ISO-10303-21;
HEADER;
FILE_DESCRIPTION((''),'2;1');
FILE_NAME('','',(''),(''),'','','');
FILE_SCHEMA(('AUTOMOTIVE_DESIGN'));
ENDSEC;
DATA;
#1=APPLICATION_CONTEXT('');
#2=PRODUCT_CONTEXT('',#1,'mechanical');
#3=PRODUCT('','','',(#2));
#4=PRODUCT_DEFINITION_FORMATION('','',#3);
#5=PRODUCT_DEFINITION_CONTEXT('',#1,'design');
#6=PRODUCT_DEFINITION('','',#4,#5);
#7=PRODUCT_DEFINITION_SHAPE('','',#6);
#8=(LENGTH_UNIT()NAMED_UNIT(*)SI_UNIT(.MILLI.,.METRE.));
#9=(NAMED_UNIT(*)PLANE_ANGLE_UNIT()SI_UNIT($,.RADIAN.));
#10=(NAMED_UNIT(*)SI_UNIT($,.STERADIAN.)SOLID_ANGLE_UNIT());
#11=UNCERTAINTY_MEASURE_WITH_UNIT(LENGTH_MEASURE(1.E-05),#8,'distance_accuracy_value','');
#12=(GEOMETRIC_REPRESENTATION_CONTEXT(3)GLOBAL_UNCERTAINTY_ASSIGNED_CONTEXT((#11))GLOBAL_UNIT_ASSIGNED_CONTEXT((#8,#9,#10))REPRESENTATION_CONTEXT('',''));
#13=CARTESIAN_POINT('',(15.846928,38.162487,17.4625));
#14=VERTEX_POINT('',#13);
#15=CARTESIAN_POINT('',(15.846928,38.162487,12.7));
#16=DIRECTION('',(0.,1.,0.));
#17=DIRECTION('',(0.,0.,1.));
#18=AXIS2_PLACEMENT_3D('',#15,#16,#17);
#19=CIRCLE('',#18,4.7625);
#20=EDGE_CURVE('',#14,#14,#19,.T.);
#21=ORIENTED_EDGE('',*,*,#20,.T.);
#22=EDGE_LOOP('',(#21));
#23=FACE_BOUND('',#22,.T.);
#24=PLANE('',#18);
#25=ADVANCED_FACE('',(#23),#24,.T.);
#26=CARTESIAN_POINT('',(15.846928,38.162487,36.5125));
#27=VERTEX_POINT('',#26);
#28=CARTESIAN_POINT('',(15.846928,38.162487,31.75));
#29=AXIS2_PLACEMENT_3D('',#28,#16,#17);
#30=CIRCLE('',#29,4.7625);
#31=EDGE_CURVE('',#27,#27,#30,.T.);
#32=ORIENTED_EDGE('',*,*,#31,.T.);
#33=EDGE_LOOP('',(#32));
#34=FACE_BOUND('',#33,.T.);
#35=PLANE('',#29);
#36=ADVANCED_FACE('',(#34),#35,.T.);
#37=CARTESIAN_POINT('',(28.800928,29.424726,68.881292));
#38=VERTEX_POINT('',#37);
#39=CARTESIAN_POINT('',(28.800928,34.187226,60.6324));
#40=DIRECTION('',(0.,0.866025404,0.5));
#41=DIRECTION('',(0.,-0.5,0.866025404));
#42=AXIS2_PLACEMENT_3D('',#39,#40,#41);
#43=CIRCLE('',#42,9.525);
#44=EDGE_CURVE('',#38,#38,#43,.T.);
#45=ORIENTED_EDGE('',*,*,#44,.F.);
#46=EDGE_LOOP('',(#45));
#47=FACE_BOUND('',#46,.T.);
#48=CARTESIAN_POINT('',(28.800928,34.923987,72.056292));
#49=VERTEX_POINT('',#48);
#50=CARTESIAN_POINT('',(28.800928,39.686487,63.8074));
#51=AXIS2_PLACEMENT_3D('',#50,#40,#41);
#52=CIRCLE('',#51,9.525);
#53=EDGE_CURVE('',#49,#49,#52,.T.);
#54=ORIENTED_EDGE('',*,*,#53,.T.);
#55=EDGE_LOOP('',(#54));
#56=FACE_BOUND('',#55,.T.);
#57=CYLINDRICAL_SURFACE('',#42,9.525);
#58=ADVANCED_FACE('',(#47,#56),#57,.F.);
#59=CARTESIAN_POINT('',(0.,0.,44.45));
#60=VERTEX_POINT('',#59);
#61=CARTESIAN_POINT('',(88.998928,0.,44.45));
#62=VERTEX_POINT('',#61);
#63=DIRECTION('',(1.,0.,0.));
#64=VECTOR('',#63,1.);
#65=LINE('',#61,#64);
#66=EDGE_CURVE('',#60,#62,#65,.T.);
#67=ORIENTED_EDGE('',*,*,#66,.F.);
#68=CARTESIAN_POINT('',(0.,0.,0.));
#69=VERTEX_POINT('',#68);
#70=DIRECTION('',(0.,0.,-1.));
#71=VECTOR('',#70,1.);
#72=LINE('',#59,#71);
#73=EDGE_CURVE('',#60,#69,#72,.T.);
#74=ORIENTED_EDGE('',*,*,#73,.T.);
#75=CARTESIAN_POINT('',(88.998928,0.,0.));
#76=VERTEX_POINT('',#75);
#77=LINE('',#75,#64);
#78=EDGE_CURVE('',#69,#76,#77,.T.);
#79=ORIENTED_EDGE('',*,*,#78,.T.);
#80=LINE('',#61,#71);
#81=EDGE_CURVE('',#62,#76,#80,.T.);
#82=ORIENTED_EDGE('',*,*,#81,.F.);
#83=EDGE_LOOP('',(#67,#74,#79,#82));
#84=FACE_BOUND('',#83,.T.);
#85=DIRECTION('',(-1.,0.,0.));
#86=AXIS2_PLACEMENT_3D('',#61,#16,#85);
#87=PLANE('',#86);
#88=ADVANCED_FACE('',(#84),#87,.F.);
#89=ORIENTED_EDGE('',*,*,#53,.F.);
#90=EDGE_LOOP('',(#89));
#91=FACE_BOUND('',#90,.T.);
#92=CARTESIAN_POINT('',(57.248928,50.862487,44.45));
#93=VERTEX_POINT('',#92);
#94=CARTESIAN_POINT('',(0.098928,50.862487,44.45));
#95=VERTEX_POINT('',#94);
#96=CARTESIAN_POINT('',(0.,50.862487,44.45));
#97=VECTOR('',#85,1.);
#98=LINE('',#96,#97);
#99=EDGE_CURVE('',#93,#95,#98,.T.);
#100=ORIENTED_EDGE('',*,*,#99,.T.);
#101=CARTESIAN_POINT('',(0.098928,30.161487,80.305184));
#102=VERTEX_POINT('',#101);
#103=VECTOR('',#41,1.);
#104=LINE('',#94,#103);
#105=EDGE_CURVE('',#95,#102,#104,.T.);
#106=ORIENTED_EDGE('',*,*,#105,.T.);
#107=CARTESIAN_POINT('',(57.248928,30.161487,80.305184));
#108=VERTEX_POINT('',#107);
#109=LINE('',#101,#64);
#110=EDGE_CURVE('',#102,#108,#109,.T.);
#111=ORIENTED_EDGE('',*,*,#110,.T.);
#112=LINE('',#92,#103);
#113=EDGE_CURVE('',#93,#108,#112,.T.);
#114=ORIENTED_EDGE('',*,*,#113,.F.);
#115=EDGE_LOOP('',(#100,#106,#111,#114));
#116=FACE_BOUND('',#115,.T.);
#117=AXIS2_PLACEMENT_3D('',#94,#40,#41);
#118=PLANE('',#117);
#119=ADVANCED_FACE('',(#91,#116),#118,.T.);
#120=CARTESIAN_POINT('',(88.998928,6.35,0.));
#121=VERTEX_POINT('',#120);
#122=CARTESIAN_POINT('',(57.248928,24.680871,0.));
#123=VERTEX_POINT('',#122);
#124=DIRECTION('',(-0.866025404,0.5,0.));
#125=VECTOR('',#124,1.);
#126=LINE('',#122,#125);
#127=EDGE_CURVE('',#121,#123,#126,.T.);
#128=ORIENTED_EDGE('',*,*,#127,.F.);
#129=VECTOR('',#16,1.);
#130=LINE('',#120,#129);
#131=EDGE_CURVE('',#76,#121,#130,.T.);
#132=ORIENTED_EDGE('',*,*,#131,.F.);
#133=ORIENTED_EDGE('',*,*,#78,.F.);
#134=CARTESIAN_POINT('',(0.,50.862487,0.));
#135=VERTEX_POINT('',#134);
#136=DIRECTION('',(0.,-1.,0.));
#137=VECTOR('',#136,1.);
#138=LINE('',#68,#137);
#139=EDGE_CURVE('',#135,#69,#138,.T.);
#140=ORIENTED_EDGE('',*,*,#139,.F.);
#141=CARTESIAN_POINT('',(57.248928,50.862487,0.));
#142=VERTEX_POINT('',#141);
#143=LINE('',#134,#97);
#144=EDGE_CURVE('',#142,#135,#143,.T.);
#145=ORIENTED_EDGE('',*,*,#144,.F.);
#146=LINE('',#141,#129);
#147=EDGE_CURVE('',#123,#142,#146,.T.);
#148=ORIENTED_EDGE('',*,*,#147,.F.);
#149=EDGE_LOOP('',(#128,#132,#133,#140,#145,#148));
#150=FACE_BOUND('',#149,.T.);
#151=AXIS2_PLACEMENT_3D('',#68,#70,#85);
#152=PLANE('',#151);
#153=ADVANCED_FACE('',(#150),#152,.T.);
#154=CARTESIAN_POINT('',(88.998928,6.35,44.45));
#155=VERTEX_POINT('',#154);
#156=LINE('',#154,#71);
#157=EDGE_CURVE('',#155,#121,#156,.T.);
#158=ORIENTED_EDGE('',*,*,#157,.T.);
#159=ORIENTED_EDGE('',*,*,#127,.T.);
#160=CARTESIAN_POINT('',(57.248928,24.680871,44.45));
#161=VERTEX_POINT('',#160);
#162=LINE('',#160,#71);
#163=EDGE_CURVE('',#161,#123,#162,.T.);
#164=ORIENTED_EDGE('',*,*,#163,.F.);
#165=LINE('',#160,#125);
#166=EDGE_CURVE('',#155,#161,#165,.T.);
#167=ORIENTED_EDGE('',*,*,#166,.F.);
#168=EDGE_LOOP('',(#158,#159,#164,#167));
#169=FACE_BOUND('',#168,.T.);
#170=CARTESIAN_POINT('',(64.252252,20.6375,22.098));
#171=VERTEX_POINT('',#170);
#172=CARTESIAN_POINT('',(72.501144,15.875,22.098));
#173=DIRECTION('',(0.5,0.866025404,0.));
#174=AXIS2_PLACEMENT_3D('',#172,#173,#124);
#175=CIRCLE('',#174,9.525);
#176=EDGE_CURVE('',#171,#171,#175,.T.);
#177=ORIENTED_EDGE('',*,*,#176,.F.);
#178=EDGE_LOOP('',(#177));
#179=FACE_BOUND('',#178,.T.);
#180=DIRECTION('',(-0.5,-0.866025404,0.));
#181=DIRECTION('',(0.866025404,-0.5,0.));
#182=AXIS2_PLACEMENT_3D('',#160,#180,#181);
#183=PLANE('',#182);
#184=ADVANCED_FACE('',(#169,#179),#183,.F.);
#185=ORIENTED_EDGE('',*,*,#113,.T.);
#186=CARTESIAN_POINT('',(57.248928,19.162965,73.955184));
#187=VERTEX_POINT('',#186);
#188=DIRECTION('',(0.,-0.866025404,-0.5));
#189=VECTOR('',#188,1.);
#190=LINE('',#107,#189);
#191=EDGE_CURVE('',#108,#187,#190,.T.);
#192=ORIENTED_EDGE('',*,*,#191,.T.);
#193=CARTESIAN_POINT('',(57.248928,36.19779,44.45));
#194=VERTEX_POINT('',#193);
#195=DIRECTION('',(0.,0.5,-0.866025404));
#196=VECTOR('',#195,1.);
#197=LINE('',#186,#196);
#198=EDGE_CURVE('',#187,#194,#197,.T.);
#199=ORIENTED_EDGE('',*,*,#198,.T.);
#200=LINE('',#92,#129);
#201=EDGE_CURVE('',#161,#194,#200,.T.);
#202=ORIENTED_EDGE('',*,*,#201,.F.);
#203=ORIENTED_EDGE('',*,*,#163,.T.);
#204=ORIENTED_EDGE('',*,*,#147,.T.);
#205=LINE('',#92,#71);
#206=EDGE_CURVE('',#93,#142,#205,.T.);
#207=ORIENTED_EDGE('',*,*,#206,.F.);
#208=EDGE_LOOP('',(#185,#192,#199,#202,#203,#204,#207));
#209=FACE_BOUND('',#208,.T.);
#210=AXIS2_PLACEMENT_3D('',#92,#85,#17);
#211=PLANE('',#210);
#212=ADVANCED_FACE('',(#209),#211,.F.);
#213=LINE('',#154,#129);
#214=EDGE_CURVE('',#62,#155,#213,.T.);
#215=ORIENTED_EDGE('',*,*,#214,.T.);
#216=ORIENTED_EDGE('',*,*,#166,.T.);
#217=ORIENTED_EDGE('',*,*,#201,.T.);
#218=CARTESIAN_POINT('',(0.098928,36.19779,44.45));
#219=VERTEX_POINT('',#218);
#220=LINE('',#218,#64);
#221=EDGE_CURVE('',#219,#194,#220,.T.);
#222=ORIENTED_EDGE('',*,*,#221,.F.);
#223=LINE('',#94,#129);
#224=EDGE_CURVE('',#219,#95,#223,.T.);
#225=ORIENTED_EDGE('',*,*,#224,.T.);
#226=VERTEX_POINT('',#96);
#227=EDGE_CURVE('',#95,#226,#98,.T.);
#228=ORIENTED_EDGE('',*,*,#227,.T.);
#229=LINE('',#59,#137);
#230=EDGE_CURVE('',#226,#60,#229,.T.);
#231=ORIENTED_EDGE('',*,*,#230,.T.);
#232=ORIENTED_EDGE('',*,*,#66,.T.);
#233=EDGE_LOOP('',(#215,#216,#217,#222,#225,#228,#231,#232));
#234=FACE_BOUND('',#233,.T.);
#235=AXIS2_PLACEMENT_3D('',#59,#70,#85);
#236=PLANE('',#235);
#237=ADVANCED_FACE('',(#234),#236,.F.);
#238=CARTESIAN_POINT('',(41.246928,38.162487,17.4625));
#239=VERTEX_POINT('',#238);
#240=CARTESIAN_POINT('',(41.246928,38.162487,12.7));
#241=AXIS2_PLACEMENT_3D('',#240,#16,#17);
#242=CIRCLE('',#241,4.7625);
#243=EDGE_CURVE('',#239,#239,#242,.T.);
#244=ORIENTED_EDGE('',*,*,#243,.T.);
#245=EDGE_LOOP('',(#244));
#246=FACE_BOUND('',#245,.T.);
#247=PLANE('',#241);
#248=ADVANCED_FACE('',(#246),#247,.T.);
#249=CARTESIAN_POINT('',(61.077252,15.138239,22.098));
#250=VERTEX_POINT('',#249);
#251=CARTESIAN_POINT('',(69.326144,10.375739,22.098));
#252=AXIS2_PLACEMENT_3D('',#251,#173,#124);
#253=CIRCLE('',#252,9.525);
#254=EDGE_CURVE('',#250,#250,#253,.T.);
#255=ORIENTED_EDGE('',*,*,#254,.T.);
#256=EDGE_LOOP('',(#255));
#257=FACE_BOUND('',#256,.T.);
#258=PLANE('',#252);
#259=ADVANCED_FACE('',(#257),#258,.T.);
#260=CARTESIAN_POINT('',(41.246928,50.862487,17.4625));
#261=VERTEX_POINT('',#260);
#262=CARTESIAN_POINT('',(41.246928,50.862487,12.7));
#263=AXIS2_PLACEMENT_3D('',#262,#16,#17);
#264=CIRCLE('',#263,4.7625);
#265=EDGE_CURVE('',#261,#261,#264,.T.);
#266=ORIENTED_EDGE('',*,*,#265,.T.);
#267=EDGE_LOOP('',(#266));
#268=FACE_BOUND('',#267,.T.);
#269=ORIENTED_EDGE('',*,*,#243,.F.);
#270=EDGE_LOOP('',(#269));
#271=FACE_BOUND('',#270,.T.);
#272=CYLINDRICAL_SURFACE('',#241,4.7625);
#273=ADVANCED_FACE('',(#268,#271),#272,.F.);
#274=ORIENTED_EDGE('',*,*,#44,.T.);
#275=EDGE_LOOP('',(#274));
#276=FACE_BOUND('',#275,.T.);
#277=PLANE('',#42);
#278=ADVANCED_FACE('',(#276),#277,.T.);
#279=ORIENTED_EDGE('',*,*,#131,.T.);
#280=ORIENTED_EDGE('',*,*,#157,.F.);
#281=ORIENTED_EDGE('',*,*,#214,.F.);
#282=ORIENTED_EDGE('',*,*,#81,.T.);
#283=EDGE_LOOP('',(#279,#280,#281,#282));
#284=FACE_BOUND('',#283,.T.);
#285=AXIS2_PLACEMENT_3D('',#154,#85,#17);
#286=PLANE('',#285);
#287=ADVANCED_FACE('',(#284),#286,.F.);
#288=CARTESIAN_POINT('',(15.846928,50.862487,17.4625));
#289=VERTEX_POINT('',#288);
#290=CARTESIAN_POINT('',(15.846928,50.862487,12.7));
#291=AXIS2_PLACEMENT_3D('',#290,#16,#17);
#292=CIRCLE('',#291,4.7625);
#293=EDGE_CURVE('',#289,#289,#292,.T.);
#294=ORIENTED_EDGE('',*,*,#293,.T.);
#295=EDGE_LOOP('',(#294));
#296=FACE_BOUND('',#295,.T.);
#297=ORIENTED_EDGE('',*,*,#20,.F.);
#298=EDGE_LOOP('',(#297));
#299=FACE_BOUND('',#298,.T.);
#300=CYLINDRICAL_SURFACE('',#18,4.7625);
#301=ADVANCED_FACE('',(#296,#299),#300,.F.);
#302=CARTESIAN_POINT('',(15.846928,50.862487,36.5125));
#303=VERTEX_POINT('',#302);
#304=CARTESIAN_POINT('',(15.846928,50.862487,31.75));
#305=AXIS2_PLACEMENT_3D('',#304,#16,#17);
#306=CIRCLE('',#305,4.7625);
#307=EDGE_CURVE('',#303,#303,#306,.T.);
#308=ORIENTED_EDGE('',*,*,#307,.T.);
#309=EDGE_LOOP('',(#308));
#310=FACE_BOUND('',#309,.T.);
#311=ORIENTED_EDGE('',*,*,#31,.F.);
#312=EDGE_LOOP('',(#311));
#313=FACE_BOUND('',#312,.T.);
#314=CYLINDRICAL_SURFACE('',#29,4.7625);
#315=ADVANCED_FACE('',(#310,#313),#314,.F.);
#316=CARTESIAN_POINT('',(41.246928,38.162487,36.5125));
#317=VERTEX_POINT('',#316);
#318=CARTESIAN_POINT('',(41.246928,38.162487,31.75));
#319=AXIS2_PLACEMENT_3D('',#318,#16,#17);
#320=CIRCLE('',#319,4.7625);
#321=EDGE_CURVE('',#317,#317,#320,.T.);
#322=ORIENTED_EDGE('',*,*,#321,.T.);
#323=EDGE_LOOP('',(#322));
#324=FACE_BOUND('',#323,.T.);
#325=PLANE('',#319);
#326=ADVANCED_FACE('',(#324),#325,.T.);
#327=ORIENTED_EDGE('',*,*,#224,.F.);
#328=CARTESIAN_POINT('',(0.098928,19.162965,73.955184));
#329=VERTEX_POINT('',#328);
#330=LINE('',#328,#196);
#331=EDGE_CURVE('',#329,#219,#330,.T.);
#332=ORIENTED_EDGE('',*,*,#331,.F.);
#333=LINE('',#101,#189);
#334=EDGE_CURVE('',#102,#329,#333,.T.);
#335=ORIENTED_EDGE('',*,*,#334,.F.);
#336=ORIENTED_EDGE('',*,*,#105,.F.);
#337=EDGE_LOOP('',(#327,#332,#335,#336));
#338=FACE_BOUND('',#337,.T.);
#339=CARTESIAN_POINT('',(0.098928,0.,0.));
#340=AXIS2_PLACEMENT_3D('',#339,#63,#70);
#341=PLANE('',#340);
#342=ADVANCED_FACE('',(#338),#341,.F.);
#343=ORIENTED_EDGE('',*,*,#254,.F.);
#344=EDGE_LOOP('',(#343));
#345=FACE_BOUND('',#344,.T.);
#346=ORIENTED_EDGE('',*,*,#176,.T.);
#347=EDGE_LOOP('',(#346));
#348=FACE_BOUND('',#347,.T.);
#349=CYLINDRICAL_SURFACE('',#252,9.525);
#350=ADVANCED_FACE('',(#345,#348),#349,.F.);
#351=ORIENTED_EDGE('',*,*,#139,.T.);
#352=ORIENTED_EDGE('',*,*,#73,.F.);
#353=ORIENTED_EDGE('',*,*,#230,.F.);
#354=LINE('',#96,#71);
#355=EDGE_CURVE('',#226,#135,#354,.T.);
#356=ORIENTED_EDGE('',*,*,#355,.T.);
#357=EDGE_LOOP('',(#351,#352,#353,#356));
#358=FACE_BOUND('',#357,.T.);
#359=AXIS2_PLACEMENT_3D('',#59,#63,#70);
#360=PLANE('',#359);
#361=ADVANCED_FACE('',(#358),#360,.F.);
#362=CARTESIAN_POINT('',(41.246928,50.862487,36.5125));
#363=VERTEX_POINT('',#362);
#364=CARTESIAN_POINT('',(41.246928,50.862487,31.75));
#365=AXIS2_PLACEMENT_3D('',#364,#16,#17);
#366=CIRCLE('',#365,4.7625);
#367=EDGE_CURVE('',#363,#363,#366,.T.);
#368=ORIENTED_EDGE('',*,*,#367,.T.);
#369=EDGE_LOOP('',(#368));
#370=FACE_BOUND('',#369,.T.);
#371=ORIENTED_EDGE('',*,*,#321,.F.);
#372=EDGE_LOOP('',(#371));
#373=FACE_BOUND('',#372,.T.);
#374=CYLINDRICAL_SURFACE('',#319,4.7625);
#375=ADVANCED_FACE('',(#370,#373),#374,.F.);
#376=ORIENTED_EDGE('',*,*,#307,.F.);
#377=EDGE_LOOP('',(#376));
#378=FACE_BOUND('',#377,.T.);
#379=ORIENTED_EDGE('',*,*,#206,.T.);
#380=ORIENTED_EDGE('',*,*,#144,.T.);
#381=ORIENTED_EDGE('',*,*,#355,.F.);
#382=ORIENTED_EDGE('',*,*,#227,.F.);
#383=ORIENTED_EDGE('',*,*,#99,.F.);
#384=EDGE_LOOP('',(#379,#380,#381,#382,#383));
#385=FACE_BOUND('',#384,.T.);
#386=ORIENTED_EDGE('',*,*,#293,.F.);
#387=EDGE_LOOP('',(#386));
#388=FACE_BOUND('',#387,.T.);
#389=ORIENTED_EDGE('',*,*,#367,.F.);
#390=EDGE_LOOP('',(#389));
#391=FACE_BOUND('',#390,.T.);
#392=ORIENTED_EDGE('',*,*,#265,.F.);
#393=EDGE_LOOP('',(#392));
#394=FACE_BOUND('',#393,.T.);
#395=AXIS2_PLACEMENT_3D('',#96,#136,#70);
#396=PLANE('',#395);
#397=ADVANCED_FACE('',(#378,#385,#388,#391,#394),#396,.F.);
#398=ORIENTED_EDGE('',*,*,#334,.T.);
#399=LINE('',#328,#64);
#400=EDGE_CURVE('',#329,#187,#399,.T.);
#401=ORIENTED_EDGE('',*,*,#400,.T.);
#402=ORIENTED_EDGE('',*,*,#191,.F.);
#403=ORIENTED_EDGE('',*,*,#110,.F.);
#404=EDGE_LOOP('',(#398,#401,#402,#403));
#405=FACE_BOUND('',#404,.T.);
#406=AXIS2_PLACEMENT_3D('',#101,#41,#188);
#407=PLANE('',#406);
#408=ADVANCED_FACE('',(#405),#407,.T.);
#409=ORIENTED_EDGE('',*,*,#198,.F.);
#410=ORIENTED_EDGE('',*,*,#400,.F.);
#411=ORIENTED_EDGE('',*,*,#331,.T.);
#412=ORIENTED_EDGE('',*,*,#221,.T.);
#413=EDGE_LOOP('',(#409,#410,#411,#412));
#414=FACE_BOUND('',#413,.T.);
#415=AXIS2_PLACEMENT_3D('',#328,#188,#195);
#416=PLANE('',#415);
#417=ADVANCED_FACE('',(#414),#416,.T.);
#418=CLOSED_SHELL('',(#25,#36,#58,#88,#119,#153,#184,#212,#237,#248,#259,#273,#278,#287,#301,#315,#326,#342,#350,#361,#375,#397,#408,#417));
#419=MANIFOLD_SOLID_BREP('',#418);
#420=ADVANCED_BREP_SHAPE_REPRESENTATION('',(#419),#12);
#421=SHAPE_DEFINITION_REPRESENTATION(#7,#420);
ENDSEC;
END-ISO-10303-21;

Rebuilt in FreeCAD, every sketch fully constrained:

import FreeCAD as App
import Part
import Sketcher
from FreeCAD import Vector
Q = App.Units.Quantity


def add_polygon(sketch, points):
    """Adds a closed chain of lines whose ends are joined by coincident constraints."""
    first, n = sketch.GeometryCount, len(points)
    for a, b in zip(points, points[1:] + points[:1]):
        sketch.addGeometry(Part.LineSegment(App.Vector(*a, 0), App.Vector(*b, 0)), False)
    for i in range(n):
        sketch.addConstraint(Sketcher.Constraint("Coincident", first + i, 2, first + (i + 1) % n, 1))

doc = App.newDocument("Part")
body = doc.addObject("PartDesign::Body", "Body")

# Sketch on XY plane
sketch1 = body.newObject("Sketcher::SketchObject", "Sketch")
sketch1.AttachmentSupport = (doc.getObject("XY_Plane"), [""])
sketch1.MapMode = "FlatFace"
add_polygon(sketch1, [(0, 51), (0, 0), (89, 0), (89, 6), (57, 25), (57, 51)])  # lines 0-5
sketch1.addConstraint(Sketcher.Constraint("Vertical", 0))
sketch1.addConstraint(Sketcher.Constraint("Horizontal", 1))
sketch1.addConstraint(Sketcher.Constraint("Vertical", 2))
sketch1.addConstraint(Sketcher.Constraint("Vertical", 4))
sketch1.addConstraint(Sketcher.Constraint("Horizontal", 5))
sketch1.addConstraint(Sketcher.Constraint("Coincident", 0, 2, -1, 1))
sketch1.addConstraint(Sketcher.Constraint("Angle", 3, Q("150 deg")))
sketch1.addConstraint(Sketcher.Constraint("DistanceY", 2, 1, 2, 2, Q("0.25 in")))
sketch1.addConstraint(Sketcher.Constraint("DistanceX", 3, 2, 2, 2, Q("1.25 in")))
sketch1.addConstraint(Sketcher.Constraint("DistanceX", 1, 1, 1, 2, 88.998928))
sketch1.addConstraint(Sketcher.Constraint("DistanceY", 0, 2, 0, 1, 50.862487))
pad1 = body.newObject("PartDesign::Pad", "Pad")
pad1.Profile = sketch1
pad1.Length = Q("1.75 in")

# Sketch on YZ plane
sketch2 = body.newObject("Sketcher::SketchObject", "Sketch001")
sketch2.AttachmentSupport = (doc.getObject("YZ_Plane"), [""])
sketch2.MapMode = "FlatFace"
sketch2.AttachmentOffset = App.Placement(Vector(0, 0, 57.248928), App.Rotation())
add_polygon(sketch2, [(51, 44), (30, 80), (19, 74), (36, 44)])  # lines 0-3
sketch2.addConstraint(Sketcher.Constraint("Horizontal", 3))
sketch2.addConstraint(Sketcher.Constraint("Perpendicular", 0, 1))
sketch2.addConstraint(Sketcher.Constraint("Perpendicular", 1, 2))
sketch2.addConstraint(Sketcher.Constraint("Angle", 0, Q("120 deg")))
sketch2.addConstraint(Sketcher.Constraint("Distance", 1, Q("0.5 in")))
sketch2.addConstraint(Sketcher.Constraint("Distance", 0, Q("1.63 in")))
sketch2.addConstraint(Sketcher.Constraint("DistanceY", -1, 1, 2, 2, Q("1.75 in")))
sketch2.addConstraint(Sketcher.Constraint("DistanceX", -1, 1, 2, 2, 36.19779))
pad2 = body.newObject("PartDesign::Pad", "Pad001")
pad2.Profile = sketch2
pad2.Length = Q("2.25 in")
pad2.Reversed = True

# Sketch on an angled plane
sketch3 = body.newObject("Sketcher::SketchObject", "Sketch002")
sketch3.Placement = App.Placement(Vector(0, 57.39428, 33.136603), App.Rotation(Vector(1, 0, 0), Vector(0, 0.5, -0.866025404), Vector(0, 0.866025404, 0.5), "ZXY"))
sketch3.addGeometry(Part.Circle(Vector(29, -35, 0), Vector(0, 0, 1), 10), False)
sketch3.addConstraint(Sketcher.Constraint("Diameter", 0, Q("0.75 in")))
sketch3.addConstraint(Sketcher.Constraint("DistanceX", -1, 1, 0, 3, 28.800928))
sketch3.addConstraint(Sketcher.Constraint("DistanceY", 0, 3, -1, 1, 35.415586))
pocket1 = body.newObject("PartDesign::Pocket", "Pocket")
pocket1.Profile = sketch3
pocket1.Length = Q("0.25 in")

# Sketch on an angled plane
sketch4 = body.newObject("Sketcher::SketchObject", "Sketch003")
sketch4.Placement = App.Placement(Vector(24.999363, 43.300166, 0), App.Rotation(Vector(0.866025404, -0.5, 0), Vector(0, 0, -1), Vector(0.5, 0.866025404, 0), "ZXY"))
sketch4.addGeometry(Part.Circle(Vector(55, -22, 0), Vector(0, 0, 1), 10), False)
sketch4.addConstraint(Sketcher.Constraint("Diameter", 0, Q("0.75 in")))
sketch4.addConstraint(Sketcher.Constraint("DistanceY", 0, 3, -1, 1, Q("0.87 in")))
sketch4.addConstraint(Sketcher.Constraint("DistanceX", -1, 1, 0, 3, 54.850332))
pocket2 = body.newObject("PartDesign::Pocket", "Pocket001")
pocket2.Profile = sketch4
pocket2.Length = Q("0.25 in")

# Sketch on XZ plane
sketch5 = body.newObject("Sketcher::SketchObject", "Sketch004")
sketch5.AttachmentSupport = (doc.getObject("XZ_Plane"), [""])
sketch5.MapMode = "FlatFace"
sketch5.AttachmentOffset = App.Placement(Vector(0, 0, -50.862487), App.Rotation())
sketch5.addGeometry(Part.Circle(Vector(15.8, 12.7, 0), Vector(0, 0, 1), 4.8), False)
sketch5.addGeometry(Part.Circle(Vector(15.8, 31.8, 0), Vector(0, 0, 1), 4.8), False)
sketch5.addGeometry(Part.Circle(Vector(41.2, 31.8, 0), Vector(0, 0, 1), 4.8), False)
sketch5.addGeometry(Part.Circle(Vector(41.2, 12.7, 0), Vector(0, 0, 1), 4.8), False)
sketch5.addConstraint(Sketcher.Constraint("Equal", 0, 1))
sketch5.addConstraint(Sketcher.Constraint("Equal", 1, 2))
sketch5.addConstraint(Sketcher.Constraint("Equal", 2, 3))
sketch5.addConstraint(Sketcher.Constraint("Horizontal", 1, 3, 2, 3))
sketch5.addConstraint(Sketcher.Constraint("Horizontal", 0, 3, 3, 3))
sketch5.addConstraint(Sketcher.Constraint("Vertical", 0, 3, 1, 3))
sketch5.addConstraint(Sketcher.Constraint("Vertical", 2, 3, 3, 3))
sketch5.addConstraint(Sketcher.Constraint("Diameter", 0, Q("0.375 in")))
sketch5.addConstraint(Sketcher.Constraint("DistanceX", 1, 3, 2, 3, Q("1 in")))
sketch5.addConstraint(Sketcher.Constraint("DistanceY", -1, 1, 0, 3, Q("0.5 in")))
sketch5.addConstraint(Sketcher.Constraint("DistanceY", -1, 1, 1, 3, Q("1.25 in")))
sketch5.addConstraint(Sketcher.Constraint("DistanceX", -1, 1, 0, 3, 15.846928))
pocket3 = body.newObject("PartDesign::Pocket", "Pocket002")
pocket3.Profile = sketch5
pocket3.Length = Q("0.5 in")
pocket3.Reversed = True

doc.recompute()
